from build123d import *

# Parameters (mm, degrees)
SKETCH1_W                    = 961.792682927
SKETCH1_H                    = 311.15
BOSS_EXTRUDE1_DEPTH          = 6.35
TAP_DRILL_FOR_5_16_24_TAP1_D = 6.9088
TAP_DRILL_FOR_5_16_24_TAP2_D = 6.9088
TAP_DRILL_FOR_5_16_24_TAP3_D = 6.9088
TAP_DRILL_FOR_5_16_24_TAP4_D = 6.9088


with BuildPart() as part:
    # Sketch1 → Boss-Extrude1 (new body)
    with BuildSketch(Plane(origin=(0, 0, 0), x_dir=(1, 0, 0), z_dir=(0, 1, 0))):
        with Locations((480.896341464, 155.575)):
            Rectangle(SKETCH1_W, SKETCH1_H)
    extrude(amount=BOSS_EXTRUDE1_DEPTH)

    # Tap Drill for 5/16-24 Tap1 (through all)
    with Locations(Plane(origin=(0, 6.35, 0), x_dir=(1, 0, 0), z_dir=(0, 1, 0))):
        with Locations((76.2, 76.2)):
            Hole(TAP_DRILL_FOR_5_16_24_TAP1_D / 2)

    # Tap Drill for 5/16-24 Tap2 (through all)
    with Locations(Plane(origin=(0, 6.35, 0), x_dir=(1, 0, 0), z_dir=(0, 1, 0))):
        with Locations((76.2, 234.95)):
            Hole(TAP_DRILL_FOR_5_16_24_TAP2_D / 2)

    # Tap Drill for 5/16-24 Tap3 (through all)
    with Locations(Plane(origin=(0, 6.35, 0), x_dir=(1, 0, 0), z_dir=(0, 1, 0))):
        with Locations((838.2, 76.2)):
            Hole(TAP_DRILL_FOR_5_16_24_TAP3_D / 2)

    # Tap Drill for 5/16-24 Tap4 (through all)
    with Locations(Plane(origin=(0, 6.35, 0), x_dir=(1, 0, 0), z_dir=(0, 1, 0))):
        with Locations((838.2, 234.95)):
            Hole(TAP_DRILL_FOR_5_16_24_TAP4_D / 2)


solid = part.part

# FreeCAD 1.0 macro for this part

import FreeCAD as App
import Part
import Sketcher

V = App.Vector
Q = App.Units.Quantity


def add_polygon(sketch, points):
    """Adds a closed chain of lines whose ends are joined by coincident constraints."""
    first, n = sketch.GeometryCount, len(points)
    for a, b in zip(points, points[1:] + points[:1]):
        sketch.addGeometry(Part.LineSegment(App.Vector(*a, 0), App.Vector(*b, 0)), False)
    for i in range(n):
        sketch.addConstraint(Sketcher.Constraint("Coincident", first + i, 2, first + (i + 1) % n, 1))

doc = App.newDocument("Part")
body = doc.addObject("PartDesign::Body", "Body")

sketch1 = body.newObject("Sketcher::SketchObject", "Sketch")
sketch1.AttachmentSupport = (doc.getObject("XZ_Plane"), [""])
sketch1.MapMode = "FlatFace"
add_polygon(sketch1, [(0, -311), (0, 0), (962, 0), (962, -311)])
sketch1.addConstraint(Sketcher.Constraint("Vertical", 0))
sketch1.addConstraint(Sketcher.Constraint("Horizontal", 1))
sketch1.addConstraint(Sketcher.Constraint("Vertical", 2))
sketch1.addConstraint(Sketcher.Constraint("Horizontal", 3))
sketch1.addConstraint(Sketcher.Constraint("Coincident", 0, 2, -1, 1))
sketch1.addConstraint(Sketcher.Constraint("DistanceY", 0, 1, 0, 2, Q("12.25 in")))
sketch1.addConstraint(Sketcher.Constraint("DistanceX", 1, 1, 1, 2, Q("961.792683 mm")))
pad1 = body.newObject("PartDesign::Pad", "Pad")
pad1.Profile = sketch1
pad1.Length = Q("0.25 in")
pad1.Reversed = True

sketch2 = body.newObject("Sketcher::SketchObject", "Sketch001")
sketch2.AttachmentSupport = (doc.getObject("XZ_Plane"), [""])
sketch2.MapMode = "FlatFace"
sketch2.AttachmentOffset = App.Placement(V(0, 0, -0.25 * 25.4), App.Rotation())
sketch2.addGeometry(Part.Circle(V(76.2, -76.2, 0), V(0, 0, 1), 3.5), False)
sketch2.addConstraint(Sketcher.Constraint("Diameter", 0, Q("0.272 in")))
sketch2.addConstraint(Sketcher.Constraint("DistanceX", -1, 1, 0, 3, Q("3 in")))
sketch2.addConstraint(Sketcher.Constraint("DistanceY", 0, 3, -1, 1, Q("3 in")))
doc.recompute()
hole = body.newObject("PartDesign::Hole", "Hole")
hole.Profile = sketch2
hole.ThreadType = "None"
hole.Diameter = Q("0.272 in")
hole.DepthType = "ThroughAll"
hole.Reversed = True

sketch3 = body.newObject("Sketcher::SketchObject", "Sketch002")
sketch3.AttachmentSupport = (doc.getObject("XZ_Plane"), [""])
sketch3.MapMode = "FlatFace"
sketch3.AttachmentOffset = App.Placement(V(0, 0, -0.25 * 25.4), App.Rotation())
sketch3.addGeometry(Part.Circle(V(76.2, -234.9, 0), V(0, 0, 1), 3.5), False)
sketch3.addConstraint(Sketcher.Constraint("Diameter", 0, Q("0.272 in")))
sketch3.addConstraint(Sketcher.Constraint("DistanceX", -1, 1, 0, 3, Q("3 in")))
sketch3.addConstraint(Sketcher.Constraint("DistanceY", 0, 3, -1, 1, Q("9.25 in")))
doc.recompute()
hole2 = body.newObject("PartDesign::Hole", "Hole001")
hole2.Profile = sketch3
hole2.ThreadType = "None"
hole2.Diameter = Q("0.272 in")
hole2.DepthType = "ThroughAll"
hole2.Reversed = True

sketch4 = body.newObject("Sketcher::SketchObject", "Sketch003")
sketch4.AttachmentSupport = (doc.getObject("XZ_Plane"), [""])
sketch4.MapMode = "FlatFace"
sketch4.AttachmentOffset = App.Placement(V(0, 0, -0.25 * 25.4), App.Rotation())
sketch4.addGeometry(Part.Circle(V(838.2, -76.2, 0), V(0, 0, 1), 3.5), False)
sketch4.addConstraint(Sketcher.Constraint("Diameter", 0, Q("0.272 in")))
sketch4.addConstraint(Sketcher.Constraint("DistanceX", -1, 1, 0, 3, Q("33 in")))
sketch4.addConstraint(Sketcher.Constraint("DistanceY", 0, 3, -1, 1, Q("3 in")))
doc.recompute()
hole3 = body.newObject("PartDesign::Hole", "Hole002")
hole3.Profile = sketch4
hole3.ThreadType = "None"
hole3.Diameter = Q("0.272 in")
hole3.DepthType = "ThroughAll"
hole3.Reversed = True

sketch5 = body.newObject("Sketcher::SketchObject", "Sketch004")
sketch5.AttachmentSupport = (doc.getObject("XZ_Plane"), [""])
sketch5.MapMode = "FlatFace"
sketch5.AttachmentOffset = App.Placement(V(0, 0, -0.25 * 25.4), App.Rotation())
sketch5.addGeometry(Part.Circle(V(838.2, -234.9, 0), V(0, 0, 1), 3.5), False)
sketch5.addConstraint(Sketcher.Constraint("Diameter", 0, Q("0.272 in")))
sketch5.addConstraint(Sketcher.Constraint("DistanceX", -1, 1, 0, 3, Q("33 in")))
sketch5.addConstraint(Sketcher.Constraint("DistanceY", 0, 3, -1, 1, Q("9.25 in")))
doc.recompute()
hole4 = body.newObject("PartDesign::Hole", "Hole003")
hole4.Profile = sketch5
hole4.ThreadType = "None"
hole4.Diameter = Q("0.272 in")
hole4.DepthType = "ThroughAll"
hole4.Reversed = True

doc.recompute()
